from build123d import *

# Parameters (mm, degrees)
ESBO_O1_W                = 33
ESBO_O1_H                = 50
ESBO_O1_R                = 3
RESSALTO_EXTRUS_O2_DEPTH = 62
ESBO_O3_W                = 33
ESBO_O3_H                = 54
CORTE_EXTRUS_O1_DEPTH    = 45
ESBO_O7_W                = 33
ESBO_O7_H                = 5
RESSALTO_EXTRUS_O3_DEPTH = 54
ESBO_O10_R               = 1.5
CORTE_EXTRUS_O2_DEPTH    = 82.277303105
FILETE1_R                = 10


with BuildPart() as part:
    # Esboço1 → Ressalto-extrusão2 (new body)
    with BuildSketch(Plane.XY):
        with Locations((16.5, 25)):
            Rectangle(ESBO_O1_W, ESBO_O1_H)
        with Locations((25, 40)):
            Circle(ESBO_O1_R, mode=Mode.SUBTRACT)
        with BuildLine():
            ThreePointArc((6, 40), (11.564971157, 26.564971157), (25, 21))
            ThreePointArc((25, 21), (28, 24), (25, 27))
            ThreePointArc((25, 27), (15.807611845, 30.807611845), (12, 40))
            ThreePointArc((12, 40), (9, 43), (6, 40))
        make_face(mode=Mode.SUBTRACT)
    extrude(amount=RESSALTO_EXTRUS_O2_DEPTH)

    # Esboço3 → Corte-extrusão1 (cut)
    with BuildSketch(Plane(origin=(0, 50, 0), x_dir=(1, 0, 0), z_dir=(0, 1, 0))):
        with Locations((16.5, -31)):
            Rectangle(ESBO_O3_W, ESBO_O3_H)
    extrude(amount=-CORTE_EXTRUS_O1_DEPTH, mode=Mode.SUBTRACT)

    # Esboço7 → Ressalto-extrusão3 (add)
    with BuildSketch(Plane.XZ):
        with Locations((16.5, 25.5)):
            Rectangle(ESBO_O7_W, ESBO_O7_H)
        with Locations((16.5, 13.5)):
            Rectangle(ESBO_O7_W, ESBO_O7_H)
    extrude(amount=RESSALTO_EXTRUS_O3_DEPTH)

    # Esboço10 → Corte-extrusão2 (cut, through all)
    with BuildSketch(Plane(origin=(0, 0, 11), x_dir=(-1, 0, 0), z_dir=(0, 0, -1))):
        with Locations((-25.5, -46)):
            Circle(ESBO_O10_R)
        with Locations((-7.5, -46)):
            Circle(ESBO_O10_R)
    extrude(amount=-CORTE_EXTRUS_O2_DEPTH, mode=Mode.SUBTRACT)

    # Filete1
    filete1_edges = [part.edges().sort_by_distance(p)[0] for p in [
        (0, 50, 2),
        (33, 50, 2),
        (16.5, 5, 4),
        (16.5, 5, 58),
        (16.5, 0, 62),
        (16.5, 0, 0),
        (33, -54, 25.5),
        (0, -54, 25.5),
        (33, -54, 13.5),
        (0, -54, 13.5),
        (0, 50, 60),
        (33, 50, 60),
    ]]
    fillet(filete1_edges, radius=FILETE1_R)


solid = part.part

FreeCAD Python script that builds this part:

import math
import FreeCAD as App
import Part
import Sketcher

V = App.Vector


def edges_at(feature, points):
    """Names of the edges that pass closest to the given points."""
    edges = feature.Shape.Edges
    near = lambda p: min(range(len(edges)), key=lambda i: edges[i].distToShape(Part.Vertex(*p))[0])
    return sorted({f"Edge{near(p) + 1}" for p in points})

doc = App.newDocument("Part")
body = doc.addObject("PartDesign::Body", "Body")

# Sketch on XY plane
sketch1 = body.newObject("Sketcher::SketchObject", "Sketch")
sketch1.AttachmentSupport = (doc.getObject("XY_Plane"), [""])
sketch1.MapMode = "FlatFace"
sketch1.addGeometry([
    Part.LineSegment(V(0, 50, 0), V(0, 0, 0)),  # 0
    Part.LineSegment(V(0, 0, 0), V(33, 0, 0)),  # 1
    Part.LineSegment(V(33, 0, 0), V(33, 50, 0)),  # 2
    Part.LineSegment(V(33, 50, 0), V(0, 50, 0)),  # 3
    Part.ArcOfCircle(Part.Circle(V(25, 40, 0), V(0, 0, 1), 19), math.radians(180), math.radians(270)),  # 4
    Part.ArcOfCircle(Part.Circle(V(9, 40, 0), V(0, 0, 1), 3), math.radians(0), math.radians(180)),  # 5
    Part.ArcOfCircle(Part.Circle(V(25, 40, 0), V(0, 0, 1), 13), math.radians(-180), math.radians(-90)),  # 6
    Part.ArcOfCircle(Part.Circle(V(25, 24, 0), V(0, 0, 1), 3), math.radians(-90), math.radians(90)),  # 7
    Part.Circle(V(25, 40, 0), V(0, 0, 1), 3),  # 8
], False)
sketch1.addConstraint([
    Sketcher.Constraint("Coincident", 0, 2, 1, 1),
    Sketcher.Constraint("Coincident", 1, 2, 2, 1),
    Sketcher.Constraint("Coincident", 2, 2, 3, 1),
    Sketcher.Constraint("Coincident", 3, 2, 0, 1),
    Sketcher.Constraint("Tangent", 4, 1, 5, 2),
    Sketcher.Constraint("Tangent", 5, 1, 6, 1),
    Sketcher.Constraint("Tangent", 6, 2, 7, 2),
    Sketcher.Constraint("Tangent", 7, 1, 4, 2),
    Sketcher.Constraint("Vertical", 0),
    Sketcher.Constraint("Horizontal", 1),
    Sketcher.Constraint("Vertical", 2),
    Sketcher.Constraint("Horizontal", 3),
    Sketcher.Constraint("Coincident", 0, 2, -1, 1),
    Sketcher.Constraint("Coincident", 6, 3, 4, 3),
    Sketcher.Constraint("Coincident", 8, 3, 4, 3),
    Sketcher.Constraint("Equal", 7, 8),
    Sketcher.Constraint("Horizontal", 4, 3, 5, 3),
    Sketcher.Constraint("Vertical", 6, 3, 7, 3),
    Sketcher.Constraint("Diameter", 8, 6.0),
    Sketcher.Constraint("Radius", 4, 19.0),
    Sketcher.Constraint("DistanceX", 1, 1, 1, 2, 33.0),
    Sketcher.Constraint("DistanceY", 0, 2, 0, 1, 50.0),
    Sketcher.Constraint("DistanceX", -1, 1, 4, 3, 25.0),
    Sketcher.Constraint("DistanceY", -1, 1, 4, 3, 40.0),
])
pad1 = body.newObject("PartDesign::Pad", "Pad")
pad1.Profile = sketch1
pad1.Length = 62

# Sketch on XZ plane
sketch2 = body.newObject("Sketcher::SketchObject", "Sketch001")
sketch2.AttachmentSupport = (doc.getObject("XZ_Plane"), [""])
sketch2.MapMode = "FlatFace"
sketch2.AttachmentOffset = App.Placement(V(0, 0, -50), App.Rotation())
sketch2.addGeometry([
    Part.LineSegment(V(0, 4, 0), V(0, 58, 0)),
    Part.LineSegment(V(0, 58, 0), V(33, 58, 0)),
    Part.LineSegment(V(33, 58, 0), V(33, 4, 0)),
    Part.LineSegment(V(33, 4, 0), V(0, 4, 0)),
], False)
sketch2.addConstraint([
    Sketcher.Constraint("Coincident", 0, 2, 1, 1),
    Sketcher.Constraint("Coincident", 1, 2, 2, 1),
    Sketcher.Constraint("Coincident", 2, 2, 3, 1),
    Sketcher.Constraint("Coincident", 3, 2, 0, 1),
    Sketcher.Constraint("Vertical", 0),
    Sketcher.Constraint("Horizontal", 1),
    Sketcher.Constraint("Vertical", 2),
    Sketcher.Constraint("Horizontal", 3),
    Sketcher.Constraint("PointOnObject", 0, 2, -2),
    Sketcher.Constraint("DistanceX", 1, 1, 1, 2, 33.0),
    Sketcher.Constraint("DistanceY", 0, 1, 0, 2, 54.0),
    Sketcher.Constraint("DistanceY", -1, 1, 0, 2, 58.0),
])
pocket1 = body.newObject("PartDesign::Pocket", "Pocket")
pocket1.Profile = sketch2
pocket1.Length = 45
pocket1.Reversed = True

# Sketch on XZ plane
sketch3 = body.newObject("Sketcher::SketchObject", "Sketch002")
sketch3.AttachmentSupport = (doc.getObject("XZ_Plane"), [""])
sketch3.MapMode = "FlatFace"
sketch3.addGeometry([
    Part.LineSegment(V(0, 28, 0), V(0, 23, 0)),  # 0
    Part.LineSegment(V(0, 23, 0), V(33, 23, 0)),  # 1
    Part.LineSegment(V(33, 23, 0), V(33, 28, 0)),  # 2
    Part.LineSegment(V(33, 28, 0), V(0, 28, 0)),  # 3
    Part.LineSegment(V(0, 16, 0), V(0, 11, 0)),  # 4
    Part.LineSegment(V(0, 11, 0), V(33, 11, 0)),  # 5
    Part.LineSegment(V(33, 11, 0), V(33, 16, 0)),  # 6
    Part.LineSegment(V(33, 16, 0), V(0, 16, 0)),  # 7
], False)
sketch3.addConstraint([
    Sketcher.Constraint("Coincident", 0, 2, 1, 1),
    Sketcher.Constraint("Coincident", 1, 2, 2, 1),
    Sketcher.Constraint("Coincident", 2, 2, 3, 1),
    Sketcher.Constraint("Coincident", 3, 2, 0, 1),
    Sketcher.Constraint("Coincident", 4, 2, 5, 1),
    Sketcher.Constraint("Coincident", 5, 2, 6, 1),
    Sketcher.Constraint("Coincident", 6, 2, 7, 1),
    Sketcher.Constraint("Coincident", 7, 2, 4, 1),
    Sketcher.Constraint("Vertical", 0),
    Sketcher.Constraint("Horizontal", 1),
    Sketcher.Constraint("Vertical", 2),
    Sketcher.Constraint("Horizontal", 3),
    Sketcher.Constraint("Vertical", 4),
    Sketcher.Constraint("Horizontal", 5),
    Sketcher.Constraint("Vertical", 6),
    Sketcher.Constraint("Horizontal", 7),
    Sketcher.Constraint("PointOnObject", 0, 2, -2),
    Sketcher.Constraint("PointOnObject", 4, 2, -2),
    Sketcher.Constraint("Vertical", 2, 2, 5, 2),
    Sketcher.Constraint("Equal", 2, 4),
    Sketcher.Constraint("DistanceX", 1, 1, 1, 2, 33.0),
    Sketcher.Constraint("DistanceY", 0, 2, 0, 1, 5.0),
    Sketcher.Constraint("DistanceY", -1, 1, 0, 2, 23.0),
    Sketcher.Constraint("DistanceY", -1, 1, 4, 2, 11.0),
])
pad2 = body.newObject("PartDesign::Pad", "Pad001")
pad2.Profile = sketch3
pad2.Length = 54

# Sketch on XY plane
sketch4 = body.newObject("Sketcher::SketchObject", "Sketch003")
sketch4.AttachmentSupport = (doc.getObject("XY_Plane"), [""])
sketch4.MapMode = "FlatFace"
sketch4.AttachmentOffset = App.Placement(V(0, 0, 11), App.Rotation())
sketch4.addGeometry([
    Part.Circle(V(25.5, -46, 0), V(0, 0, 1), 1.5),
    Part.Circle(V(7.5, -46, 0), V(0, 0, 1), 1.5),
], False)
sketch4.addConstraint([
    Sketcher.Constraint("Equal", 0, 1),
    Sketcher.Constraint("Horizontal", 0, 3, 1, 3),
    Sketcher.Constraint("Diameter", 0, 3.0),
    Sketcher.Constraint("DistanceY", 0, 3, -1, 1, 46.0),
    Sketcher.Constraint("DistanceX", 1, 3, 0, 3, 18.0),
    Sketcher.Constraint("DistanceX", -1, 1, 0, 3, 25.5),
])
pocket2 = body.newObject("PartDesign::Pocket", "Pocket001")
pocket2.Profile = sketch4
pocket2.Type = "ThroughAll"
pocket2.Reversed = True
doc.recompute()

fillet = body.newObject("PartDesign::Fillet", "Fillet")
fillet.Base = (pocket2, edges_at(pocket2, [
    (0, 50, 2),
    (33, 50, 2),
    (16.5, 5, 4),
    (16.5, 5, 58),
    (16.5, 0, 62),
    (16.5, 0, 0),
    (33, -54, 25.5),
    (0, -54, 25.5),
    (33, -54, 13.5),
    (0, -54, 13.5),
    (0, 50, 60),
    (33, 50, 60),
]))
fillet.Radius = 10

doc.recompute()
